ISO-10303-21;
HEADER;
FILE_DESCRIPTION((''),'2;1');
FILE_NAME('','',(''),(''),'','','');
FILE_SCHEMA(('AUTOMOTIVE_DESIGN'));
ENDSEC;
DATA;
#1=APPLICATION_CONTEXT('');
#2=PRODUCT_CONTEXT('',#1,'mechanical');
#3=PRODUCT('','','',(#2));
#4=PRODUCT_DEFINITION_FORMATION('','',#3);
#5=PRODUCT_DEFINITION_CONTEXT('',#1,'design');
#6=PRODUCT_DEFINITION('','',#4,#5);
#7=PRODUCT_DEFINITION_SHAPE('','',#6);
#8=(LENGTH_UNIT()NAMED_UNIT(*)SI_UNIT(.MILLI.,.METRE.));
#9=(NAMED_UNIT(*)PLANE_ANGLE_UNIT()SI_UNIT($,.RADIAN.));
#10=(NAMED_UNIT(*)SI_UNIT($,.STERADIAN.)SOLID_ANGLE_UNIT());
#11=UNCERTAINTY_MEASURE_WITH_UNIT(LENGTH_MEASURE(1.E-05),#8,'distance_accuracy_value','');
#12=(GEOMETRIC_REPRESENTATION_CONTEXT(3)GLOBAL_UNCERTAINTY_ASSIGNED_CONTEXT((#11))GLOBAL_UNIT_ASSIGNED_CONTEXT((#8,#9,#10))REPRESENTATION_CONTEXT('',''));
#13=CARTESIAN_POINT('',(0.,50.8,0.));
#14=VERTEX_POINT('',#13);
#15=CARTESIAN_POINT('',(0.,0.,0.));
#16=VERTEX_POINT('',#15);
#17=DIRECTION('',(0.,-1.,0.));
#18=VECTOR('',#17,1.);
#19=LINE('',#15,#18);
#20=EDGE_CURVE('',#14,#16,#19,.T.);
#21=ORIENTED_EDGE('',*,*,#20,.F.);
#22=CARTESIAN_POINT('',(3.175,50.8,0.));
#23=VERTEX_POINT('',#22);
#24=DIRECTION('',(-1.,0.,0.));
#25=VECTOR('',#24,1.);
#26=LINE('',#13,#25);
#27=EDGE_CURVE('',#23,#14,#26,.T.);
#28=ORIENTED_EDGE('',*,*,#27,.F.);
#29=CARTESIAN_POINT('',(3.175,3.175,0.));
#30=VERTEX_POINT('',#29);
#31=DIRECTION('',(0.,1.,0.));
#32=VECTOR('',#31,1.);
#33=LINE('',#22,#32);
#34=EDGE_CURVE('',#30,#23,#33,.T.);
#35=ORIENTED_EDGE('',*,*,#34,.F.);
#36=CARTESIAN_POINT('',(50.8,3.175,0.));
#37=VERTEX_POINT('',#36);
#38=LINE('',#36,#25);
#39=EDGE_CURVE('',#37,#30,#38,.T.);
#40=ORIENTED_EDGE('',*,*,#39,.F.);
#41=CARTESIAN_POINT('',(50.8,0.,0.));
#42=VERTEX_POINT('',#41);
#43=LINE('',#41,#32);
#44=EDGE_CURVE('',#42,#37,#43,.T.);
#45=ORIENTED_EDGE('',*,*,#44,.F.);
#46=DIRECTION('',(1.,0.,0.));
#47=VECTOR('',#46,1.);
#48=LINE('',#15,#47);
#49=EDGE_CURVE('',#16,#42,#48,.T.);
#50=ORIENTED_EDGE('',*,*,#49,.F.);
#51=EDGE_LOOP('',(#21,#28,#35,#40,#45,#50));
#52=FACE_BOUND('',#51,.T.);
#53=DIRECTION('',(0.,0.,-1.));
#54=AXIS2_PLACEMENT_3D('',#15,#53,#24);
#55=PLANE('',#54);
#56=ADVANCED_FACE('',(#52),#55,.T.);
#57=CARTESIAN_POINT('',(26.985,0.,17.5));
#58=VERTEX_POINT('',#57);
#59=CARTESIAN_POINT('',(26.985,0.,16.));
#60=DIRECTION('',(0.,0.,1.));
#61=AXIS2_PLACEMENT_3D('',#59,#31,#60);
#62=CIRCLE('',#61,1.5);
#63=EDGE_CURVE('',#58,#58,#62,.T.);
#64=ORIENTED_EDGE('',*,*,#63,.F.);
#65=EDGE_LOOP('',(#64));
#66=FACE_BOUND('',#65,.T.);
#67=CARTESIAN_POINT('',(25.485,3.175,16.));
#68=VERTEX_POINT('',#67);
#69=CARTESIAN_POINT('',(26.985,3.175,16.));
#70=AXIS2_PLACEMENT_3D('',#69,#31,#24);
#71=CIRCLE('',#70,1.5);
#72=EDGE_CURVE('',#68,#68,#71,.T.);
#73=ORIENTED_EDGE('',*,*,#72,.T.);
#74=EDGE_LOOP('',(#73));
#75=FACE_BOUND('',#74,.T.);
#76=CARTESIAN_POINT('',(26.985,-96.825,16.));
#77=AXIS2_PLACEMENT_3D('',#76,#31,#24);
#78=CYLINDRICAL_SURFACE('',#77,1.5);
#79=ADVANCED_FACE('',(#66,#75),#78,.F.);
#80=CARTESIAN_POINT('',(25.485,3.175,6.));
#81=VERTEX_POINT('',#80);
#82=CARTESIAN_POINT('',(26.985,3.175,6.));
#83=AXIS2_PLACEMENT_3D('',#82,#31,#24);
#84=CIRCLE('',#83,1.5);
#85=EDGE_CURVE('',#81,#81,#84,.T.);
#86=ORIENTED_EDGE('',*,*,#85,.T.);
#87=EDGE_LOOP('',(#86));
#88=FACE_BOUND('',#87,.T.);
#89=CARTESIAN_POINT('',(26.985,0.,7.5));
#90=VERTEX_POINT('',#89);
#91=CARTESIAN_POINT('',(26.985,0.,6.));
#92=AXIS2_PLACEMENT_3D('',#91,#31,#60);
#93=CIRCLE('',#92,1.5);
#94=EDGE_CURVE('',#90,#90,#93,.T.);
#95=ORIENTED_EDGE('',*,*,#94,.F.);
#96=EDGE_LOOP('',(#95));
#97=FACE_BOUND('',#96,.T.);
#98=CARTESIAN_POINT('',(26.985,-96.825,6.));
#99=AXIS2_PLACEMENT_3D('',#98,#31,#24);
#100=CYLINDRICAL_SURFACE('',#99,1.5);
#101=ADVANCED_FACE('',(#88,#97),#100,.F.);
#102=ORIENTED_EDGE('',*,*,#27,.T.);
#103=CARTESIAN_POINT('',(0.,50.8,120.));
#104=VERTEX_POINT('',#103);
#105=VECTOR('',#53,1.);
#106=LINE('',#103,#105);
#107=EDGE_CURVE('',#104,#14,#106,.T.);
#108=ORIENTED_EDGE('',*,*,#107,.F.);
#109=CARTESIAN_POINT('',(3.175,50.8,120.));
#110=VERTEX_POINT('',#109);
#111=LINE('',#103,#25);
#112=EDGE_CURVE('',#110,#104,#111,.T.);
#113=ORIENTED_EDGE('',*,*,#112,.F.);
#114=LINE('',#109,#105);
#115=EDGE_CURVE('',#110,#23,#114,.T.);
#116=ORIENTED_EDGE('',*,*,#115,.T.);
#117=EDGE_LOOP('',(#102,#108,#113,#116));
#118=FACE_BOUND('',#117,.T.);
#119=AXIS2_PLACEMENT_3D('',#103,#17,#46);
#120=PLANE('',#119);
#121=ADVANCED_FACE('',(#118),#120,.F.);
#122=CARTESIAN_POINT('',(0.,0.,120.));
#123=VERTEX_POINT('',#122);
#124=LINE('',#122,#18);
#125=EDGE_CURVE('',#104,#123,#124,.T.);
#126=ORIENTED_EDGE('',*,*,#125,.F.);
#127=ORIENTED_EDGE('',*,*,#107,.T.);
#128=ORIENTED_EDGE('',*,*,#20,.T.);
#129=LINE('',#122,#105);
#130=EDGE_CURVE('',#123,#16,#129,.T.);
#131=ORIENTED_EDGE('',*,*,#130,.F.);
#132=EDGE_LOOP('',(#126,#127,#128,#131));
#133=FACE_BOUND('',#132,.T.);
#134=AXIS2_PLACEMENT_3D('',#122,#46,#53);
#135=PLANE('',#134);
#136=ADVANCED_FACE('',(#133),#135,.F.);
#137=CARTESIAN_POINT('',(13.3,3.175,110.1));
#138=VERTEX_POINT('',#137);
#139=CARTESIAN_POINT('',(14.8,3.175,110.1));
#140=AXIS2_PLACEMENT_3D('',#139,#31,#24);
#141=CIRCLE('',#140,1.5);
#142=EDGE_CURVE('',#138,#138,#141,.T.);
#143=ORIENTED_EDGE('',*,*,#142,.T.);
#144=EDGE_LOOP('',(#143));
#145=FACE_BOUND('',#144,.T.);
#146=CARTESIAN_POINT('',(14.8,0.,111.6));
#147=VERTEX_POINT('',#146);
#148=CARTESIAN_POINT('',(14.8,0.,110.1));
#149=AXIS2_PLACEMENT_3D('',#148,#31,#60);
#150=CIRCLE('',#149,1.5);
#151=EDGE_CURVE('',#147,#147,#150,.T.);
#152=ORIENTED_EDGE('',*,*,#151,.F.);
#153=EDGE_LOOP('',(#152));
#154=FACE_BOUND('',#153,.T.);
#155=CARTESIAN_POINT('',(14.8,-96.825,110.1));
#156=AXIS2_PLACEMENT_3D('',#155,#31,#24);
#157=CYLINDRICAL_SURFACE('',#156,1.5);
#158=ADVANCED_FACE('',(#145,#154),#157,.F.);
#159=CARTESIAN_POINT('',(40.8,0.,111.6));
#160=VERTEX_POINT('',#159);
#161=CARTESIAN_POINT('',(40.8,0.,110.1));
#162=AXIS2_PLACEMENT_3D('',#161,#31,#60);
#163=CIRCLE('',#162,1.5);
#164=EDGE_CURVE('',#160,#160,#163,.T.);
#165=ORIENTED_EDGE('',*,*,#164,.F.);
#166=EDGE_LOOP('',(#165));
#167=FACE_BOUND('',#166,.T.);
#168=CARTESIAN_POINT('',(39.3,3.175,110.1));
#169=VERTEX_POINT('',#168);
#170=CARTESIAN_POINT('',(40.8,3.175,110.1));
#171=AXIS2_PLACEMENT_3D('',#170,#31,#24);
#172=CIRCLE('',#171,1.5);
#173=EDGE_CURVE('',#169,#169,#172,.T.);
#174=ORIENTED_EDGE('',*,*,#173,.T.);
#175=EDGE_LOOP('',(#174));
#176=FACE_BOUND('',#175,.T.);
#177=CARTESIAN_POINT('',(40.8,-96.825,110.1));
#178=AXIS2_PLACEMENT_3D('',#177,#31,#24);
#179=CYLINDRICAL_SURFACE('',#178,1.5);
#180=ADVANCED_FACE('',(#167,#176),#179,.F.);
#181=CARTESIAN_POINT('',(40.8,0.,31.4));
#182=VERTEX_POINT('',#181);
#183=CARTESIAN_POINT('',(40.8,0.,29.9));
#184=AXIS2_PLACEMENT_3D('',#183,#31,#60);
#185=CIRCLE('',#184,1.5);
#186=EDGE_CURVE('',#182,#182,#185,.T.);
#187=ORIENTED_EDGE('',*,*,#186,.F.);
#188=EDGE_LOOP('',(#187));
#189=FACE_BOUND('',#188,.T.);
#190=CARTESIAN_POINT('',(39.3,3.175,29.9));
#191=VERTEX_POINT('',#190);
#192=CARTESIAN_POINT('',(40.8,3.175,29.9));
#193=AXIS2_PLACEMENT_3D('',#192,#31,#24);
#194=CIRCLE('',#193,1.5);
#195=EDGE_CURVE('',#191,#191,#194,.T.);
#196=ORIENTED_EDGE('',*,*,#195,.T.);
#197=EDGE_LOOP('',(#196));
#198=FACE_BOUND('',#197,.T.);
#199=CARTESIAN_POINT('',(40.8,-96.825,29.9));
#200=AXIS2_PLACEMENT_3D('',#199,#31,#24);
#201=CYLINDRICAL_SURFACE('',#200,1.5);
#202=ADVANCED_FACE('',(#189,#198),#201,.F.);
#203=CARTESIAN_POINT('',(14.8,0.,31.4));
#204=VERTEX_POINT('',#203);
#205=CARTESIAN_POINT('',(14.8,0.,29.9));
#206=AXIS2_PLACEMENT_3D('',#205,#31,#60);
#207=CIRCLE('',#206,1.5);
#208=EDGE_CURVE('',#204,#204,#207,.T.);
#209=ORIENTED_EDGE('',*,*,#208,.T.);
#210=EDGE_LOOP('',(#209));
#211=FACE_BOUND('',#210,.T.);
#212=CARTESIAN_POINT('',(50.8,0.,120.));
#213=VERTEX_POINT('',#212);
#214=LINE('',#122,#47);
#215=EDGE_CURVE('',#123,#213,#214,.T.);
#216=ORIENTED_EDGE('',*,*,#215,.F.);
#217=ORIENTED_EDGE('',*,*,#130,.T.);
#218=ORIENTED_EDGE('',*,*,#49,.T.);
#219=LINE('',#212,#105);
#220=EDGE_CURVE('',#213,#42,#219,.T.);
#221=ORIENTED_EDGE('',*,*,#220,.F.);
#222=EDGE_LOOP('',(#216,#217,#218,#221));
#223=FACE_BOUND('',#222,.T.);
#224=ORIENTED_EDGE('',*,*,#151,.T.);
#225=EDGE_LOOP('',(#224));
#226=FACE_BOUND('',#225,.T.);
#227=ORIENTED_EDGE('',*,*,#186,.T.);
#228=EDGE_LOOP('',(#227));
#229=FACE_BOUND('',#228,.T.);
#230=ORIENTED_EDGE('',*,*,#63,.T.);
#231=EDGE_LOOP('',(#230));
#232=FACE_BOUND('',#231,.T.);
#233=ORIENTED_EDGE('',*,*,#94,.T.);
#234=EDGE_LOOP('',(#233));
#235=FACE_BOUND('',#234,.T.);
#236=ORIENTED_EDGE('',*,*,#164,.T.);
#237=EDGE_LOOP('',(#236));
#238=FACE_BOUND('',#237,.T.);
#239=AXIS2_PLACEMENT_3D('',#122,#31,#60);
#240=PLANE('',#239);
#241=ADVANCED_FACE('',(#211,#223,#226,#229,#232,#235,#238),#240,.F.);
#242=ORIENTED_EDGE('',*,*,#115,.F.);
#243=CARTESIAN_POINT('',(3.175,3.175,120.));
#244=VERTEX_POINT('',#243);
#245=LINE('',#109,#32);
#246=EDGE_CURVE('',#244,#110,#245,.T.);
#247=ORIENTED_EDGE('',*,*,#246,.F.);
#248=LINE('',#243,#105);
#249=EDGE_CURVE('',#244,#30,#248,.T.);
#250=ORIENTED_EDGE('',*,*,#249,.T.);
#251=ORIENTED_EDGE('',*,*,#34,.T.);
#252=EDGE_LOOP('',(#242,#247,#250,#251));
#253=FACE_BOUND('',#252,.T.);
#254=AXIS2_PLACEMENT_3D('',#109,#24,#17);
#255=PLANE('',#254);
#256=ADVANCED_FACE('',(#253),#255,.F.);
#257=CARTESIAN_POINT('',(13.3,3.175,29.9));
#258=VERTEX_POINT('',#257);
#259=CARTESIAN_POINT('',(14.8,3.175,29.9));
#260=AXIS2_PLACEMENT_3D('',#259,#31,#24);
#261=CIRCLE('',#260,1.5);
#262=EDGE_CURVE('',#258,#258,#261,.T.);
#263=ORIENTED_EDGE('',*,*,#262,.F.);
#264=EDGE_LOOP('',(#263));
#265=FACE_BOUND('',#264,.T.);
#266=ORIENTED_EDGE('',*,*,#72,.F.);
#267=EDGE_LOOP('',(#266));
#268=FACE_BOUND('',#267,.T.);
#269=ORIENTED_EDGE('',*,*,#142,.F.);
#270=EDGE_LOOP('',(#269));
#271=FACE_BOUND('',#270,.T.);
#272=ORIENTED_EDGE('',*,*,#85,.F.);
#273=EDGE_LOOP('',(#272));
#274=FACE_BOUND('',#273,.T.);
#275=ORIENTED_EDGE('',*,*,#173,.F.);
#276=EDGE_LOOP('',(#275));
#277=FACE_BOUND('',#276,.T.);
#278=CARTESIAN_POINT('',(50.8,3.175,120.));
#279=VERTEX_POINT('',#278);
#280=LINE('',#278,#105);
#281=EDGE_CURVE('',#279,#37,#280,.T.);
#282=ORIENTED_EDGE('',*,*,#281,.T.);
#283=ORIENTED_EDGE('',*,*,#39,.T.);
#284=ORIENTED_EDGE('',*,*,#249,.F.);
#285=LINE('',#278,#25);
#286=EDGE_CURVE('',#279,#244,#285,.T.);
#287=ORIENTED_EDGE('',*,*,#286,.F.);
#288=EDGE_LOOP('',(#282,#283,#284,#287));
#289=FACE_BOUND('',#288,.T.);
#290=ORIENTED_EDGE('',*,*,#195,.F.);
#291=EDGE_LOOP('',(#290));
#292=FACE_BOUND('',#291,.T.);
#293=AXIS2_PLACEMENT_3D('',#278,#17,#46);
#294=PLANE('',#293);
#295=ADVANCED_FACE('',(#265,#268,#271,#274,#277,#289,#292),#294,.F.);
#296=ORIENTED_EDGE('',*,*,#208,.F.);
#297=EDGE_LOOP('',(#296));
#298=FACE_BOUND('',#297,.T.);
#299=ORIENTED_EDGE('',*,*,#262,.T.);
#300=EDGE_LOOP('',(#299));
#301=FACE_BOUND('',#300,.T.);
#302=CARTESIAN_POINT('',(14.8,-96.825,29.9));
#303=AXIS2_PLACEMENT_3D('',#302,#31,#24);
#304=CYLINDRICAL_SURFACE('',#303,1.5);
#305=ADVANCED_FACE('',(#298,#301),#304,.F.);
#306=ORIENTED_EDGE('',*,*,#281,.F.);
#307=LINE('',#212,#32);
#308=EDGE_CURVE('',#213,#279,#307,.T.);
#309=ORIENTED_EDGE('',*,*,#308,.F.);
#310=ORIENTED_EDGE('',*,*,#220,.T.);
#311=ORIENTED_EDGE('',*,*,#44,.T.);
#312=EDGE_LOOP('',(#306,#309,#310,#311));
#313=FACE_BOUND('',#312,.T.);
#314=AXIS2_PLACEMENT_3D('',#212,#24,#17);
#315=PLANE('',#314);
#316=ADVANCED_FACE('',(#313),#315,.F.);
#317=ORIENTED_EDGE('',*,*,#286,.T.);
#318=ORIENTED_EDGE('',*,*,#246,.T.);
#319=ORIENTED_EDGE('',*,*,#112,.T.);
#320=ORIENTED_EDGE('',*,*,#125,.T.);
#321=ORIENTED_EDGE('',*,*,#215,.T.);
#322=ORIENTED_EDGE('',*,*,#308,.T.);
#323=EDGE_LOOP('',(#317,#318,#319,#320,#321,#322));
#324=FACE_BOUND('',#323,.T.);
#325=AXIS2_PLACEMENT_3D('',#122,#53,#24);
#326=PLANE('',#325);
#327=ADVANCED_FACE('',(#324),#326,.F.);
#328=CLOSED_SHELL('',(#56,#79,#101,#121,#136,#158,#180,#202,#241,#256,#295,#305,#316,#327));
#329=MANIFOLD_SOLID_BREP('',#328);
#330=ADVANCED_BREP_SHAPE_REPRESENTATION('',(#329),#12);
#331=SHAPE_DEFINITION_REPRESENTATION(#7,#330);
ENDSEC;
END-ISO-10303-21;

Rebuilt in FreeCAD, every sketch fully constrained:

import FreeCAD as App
import Part
import Sketcher


def add_polygon(sketch, points):
    """Adds a closed chain of lines whose ends are joined by coincident constraints."""
    first, n = sketch.GeometryCount, len(points)
    for a, b in zip(points, points[1:] + points[:1]):
        sketch.addGeometry(Part.LineSegment(App.Vector(*a, 0), App.Vector(*b, 0)), False)
    for i in range(n):
        sketch.addConstraint(Sketcher.Constraint("Coincident", first + i, 2, first + (i + 1) % n, 1))

doc = App.newDocument("Part")
body = doc.addObject("PartDesign::Body", "Body")

# Sketch on XY plane
sketch1 = body.newObject("Sketcher::SketchObject", "Sketch")
sketch1.AttachmentSupport = (doc.getObject("XY_Plane"), [""])
sketch1.MapMode = "FlatFace"
add_polygon(sketch1, [(0, 0), (50.8, 0), (50.8, 3.175), (3.175, 3.175), (3.175, 50.8), (0, 50.8)])  # lines 0-5
sketch1.addConstraint(Sketcher.Constraint("Horizontal", 0))
sketch1.addConstraint(Sketcher.Constraint("Vertical", 1))
sketch1.addConstraint(Sketcher.Constraint("Horizontal", 2))
sketch1.addConstraint(Sketcher.Constraint("Vertical", 3))
sketch1.addConstraint(Sketcher.Constraint("Horizontal", 4))
sketch1.addConstraint(Sketcher.Constraint("Vertical", 5))
sketch1.addConstraint(Sketcher.Constraint("Coincident", 5, 2, -1, 1))
sketch1.addConstraint(Sketcher.Constraint("Equal", 4, 1))
sketch1.addConstraint(Sketcher.Constraint("Equal", 2, 3))
sketch1.addConstraint(Sketcher.Constraint("DistanceX", 0, 1, 0, 2, 50.8))
sketch1.addConstraint(Sketcher.Constraint("DistanceX", 2, 2, 2, 1, 47.625))
pad1 = body.newObject("PartDesign::Pad", "Pad")
pad1.Profile = sketch1
pad1.Length = 120

# Sketch on XZ plane
sketch2 = body.newObject("Sketcher::SketchObject", "Sketch001")
sketch2.AttachmentSupport = (doc.getObject("XZ_Plane"), [""])
sketch2.MapMode = "FlatFace"
sketch2.AttachmentOffset = App.Placement(App.Vector(0, 0, -3.175), App.Rotation())
sketch2.addGeometry(Part.Circle(App.Vector(40.8, 29.9, 0), App.Vector(0, 0, 1), 1.5), False)
sketch2.addGeometry(Part.Circle(App.Vector(14.8, 29.9, 0), App.Vector(0, 0, 1), 1.5), False)
sketch2.addGeometry(Part.Circle(App.Vector(40.8, 110.1, 0), App.Vector(0, 0, 1), 1.5), False)
sketch2.addGeometry(Part.Circle(App.Vector(14.8, 110.1, 0), App.Vector(0, 0, 1), 1.5), False)
sketch2.addConstraint(Sketcher.Constraint("Equal", 0, 1))
sketch2.addConstraint(Sketcher.Constraint("Equal", 1, 2))
sketch2.addConstraint(Sketcher.Constraint("Equal", 2, 3))
sketch2.addConstraint(Sketcher.Constraint("Horizontal", 0, 3, 1, 3))
sketch2.addConstraint(Sketcher.Constraint("Horizontal", 2, 3, 3, 3))
sketch2.addConstraint(Sketcher.Constraint("Vertical", 0, 3, 2, 3))
sketch2.addConstraint(Sketcher.Constraint("Vertical", 1, 3, 3, 3))
sketch2.addConstraint(Sketcher.Constraint("Diameter", 0, 3.0))
sketch2.addConstraint(Sketcher.Constraint("DistanceX", 1, 3, 0, 3, 26.0))
sketch2.addConstraint(Sketcher.Constraint("DistanceX", -1, 1, 0, 3, 40.8))
sketch2.addConstraint(Sketcher.Constraint("DistanceY", -1, 1, 0, 3, 29.9))
sketch2.addConstraint(Sketcher.Constraint("DistanceY", -1, 1, 2, 3, 110.1))
pocket1 = body.newObject("PartDesign::Pocket", "Pocket")
pocket1.Profile = sketch2
pocket1.Length = 100
pocket1.Reversed = True

# Sketch on XZ plane
sketch3 = body.newObject("Sketcher::SketchObject", "Sketch002")
sketch3.AttachmentSupport = (doc.getObject("XZ_Plane"), [""])
sketch3.MapMode = "FlatFace"
sketch3.AttachmentOffset = App.Placement(App.Vector(0, 0, -3.175), App.Rotation())
sketch3.addGeometry(Part.Circle(App.Vector(26.985, 6, 0), App.Vector(0, 0, 1), 1.5), False)
sketch3.addGeometry(Part.Circle(App.Vector(26.985, 16, 0), App.Vector(0, 0, 1), 1.5), False)
sketch3.addConstraint(Sketcher.Constraint("Equal", 0, 1))
sketch3.addConstraint(Sketcher.Constraint("Vertical", 0, 3, 1, 3))
sketch3.addConstraint(Sketcher.Constraint("Diameter", 0, 3.0))
sketch3.addConstraint(Sketcher.Constraint("DistanceY", -1, 1, 0, 3, 6.0))
sketch3.addConstraint(Sketcher.Constraint("DistanceY", -1, 1, 1, 3, 16.0))
sketch3.addConstraint(Sketcher.Constraint("DistanceX", -1, 1, 0, 3, 26.985))
pocket2 = body.newObject("PartDesign::Pocket", "Pocket001")
pocket2.Profile = sketch3
pocket2.Length = 100
pocket2.Reversed = True

doc.recompute()
